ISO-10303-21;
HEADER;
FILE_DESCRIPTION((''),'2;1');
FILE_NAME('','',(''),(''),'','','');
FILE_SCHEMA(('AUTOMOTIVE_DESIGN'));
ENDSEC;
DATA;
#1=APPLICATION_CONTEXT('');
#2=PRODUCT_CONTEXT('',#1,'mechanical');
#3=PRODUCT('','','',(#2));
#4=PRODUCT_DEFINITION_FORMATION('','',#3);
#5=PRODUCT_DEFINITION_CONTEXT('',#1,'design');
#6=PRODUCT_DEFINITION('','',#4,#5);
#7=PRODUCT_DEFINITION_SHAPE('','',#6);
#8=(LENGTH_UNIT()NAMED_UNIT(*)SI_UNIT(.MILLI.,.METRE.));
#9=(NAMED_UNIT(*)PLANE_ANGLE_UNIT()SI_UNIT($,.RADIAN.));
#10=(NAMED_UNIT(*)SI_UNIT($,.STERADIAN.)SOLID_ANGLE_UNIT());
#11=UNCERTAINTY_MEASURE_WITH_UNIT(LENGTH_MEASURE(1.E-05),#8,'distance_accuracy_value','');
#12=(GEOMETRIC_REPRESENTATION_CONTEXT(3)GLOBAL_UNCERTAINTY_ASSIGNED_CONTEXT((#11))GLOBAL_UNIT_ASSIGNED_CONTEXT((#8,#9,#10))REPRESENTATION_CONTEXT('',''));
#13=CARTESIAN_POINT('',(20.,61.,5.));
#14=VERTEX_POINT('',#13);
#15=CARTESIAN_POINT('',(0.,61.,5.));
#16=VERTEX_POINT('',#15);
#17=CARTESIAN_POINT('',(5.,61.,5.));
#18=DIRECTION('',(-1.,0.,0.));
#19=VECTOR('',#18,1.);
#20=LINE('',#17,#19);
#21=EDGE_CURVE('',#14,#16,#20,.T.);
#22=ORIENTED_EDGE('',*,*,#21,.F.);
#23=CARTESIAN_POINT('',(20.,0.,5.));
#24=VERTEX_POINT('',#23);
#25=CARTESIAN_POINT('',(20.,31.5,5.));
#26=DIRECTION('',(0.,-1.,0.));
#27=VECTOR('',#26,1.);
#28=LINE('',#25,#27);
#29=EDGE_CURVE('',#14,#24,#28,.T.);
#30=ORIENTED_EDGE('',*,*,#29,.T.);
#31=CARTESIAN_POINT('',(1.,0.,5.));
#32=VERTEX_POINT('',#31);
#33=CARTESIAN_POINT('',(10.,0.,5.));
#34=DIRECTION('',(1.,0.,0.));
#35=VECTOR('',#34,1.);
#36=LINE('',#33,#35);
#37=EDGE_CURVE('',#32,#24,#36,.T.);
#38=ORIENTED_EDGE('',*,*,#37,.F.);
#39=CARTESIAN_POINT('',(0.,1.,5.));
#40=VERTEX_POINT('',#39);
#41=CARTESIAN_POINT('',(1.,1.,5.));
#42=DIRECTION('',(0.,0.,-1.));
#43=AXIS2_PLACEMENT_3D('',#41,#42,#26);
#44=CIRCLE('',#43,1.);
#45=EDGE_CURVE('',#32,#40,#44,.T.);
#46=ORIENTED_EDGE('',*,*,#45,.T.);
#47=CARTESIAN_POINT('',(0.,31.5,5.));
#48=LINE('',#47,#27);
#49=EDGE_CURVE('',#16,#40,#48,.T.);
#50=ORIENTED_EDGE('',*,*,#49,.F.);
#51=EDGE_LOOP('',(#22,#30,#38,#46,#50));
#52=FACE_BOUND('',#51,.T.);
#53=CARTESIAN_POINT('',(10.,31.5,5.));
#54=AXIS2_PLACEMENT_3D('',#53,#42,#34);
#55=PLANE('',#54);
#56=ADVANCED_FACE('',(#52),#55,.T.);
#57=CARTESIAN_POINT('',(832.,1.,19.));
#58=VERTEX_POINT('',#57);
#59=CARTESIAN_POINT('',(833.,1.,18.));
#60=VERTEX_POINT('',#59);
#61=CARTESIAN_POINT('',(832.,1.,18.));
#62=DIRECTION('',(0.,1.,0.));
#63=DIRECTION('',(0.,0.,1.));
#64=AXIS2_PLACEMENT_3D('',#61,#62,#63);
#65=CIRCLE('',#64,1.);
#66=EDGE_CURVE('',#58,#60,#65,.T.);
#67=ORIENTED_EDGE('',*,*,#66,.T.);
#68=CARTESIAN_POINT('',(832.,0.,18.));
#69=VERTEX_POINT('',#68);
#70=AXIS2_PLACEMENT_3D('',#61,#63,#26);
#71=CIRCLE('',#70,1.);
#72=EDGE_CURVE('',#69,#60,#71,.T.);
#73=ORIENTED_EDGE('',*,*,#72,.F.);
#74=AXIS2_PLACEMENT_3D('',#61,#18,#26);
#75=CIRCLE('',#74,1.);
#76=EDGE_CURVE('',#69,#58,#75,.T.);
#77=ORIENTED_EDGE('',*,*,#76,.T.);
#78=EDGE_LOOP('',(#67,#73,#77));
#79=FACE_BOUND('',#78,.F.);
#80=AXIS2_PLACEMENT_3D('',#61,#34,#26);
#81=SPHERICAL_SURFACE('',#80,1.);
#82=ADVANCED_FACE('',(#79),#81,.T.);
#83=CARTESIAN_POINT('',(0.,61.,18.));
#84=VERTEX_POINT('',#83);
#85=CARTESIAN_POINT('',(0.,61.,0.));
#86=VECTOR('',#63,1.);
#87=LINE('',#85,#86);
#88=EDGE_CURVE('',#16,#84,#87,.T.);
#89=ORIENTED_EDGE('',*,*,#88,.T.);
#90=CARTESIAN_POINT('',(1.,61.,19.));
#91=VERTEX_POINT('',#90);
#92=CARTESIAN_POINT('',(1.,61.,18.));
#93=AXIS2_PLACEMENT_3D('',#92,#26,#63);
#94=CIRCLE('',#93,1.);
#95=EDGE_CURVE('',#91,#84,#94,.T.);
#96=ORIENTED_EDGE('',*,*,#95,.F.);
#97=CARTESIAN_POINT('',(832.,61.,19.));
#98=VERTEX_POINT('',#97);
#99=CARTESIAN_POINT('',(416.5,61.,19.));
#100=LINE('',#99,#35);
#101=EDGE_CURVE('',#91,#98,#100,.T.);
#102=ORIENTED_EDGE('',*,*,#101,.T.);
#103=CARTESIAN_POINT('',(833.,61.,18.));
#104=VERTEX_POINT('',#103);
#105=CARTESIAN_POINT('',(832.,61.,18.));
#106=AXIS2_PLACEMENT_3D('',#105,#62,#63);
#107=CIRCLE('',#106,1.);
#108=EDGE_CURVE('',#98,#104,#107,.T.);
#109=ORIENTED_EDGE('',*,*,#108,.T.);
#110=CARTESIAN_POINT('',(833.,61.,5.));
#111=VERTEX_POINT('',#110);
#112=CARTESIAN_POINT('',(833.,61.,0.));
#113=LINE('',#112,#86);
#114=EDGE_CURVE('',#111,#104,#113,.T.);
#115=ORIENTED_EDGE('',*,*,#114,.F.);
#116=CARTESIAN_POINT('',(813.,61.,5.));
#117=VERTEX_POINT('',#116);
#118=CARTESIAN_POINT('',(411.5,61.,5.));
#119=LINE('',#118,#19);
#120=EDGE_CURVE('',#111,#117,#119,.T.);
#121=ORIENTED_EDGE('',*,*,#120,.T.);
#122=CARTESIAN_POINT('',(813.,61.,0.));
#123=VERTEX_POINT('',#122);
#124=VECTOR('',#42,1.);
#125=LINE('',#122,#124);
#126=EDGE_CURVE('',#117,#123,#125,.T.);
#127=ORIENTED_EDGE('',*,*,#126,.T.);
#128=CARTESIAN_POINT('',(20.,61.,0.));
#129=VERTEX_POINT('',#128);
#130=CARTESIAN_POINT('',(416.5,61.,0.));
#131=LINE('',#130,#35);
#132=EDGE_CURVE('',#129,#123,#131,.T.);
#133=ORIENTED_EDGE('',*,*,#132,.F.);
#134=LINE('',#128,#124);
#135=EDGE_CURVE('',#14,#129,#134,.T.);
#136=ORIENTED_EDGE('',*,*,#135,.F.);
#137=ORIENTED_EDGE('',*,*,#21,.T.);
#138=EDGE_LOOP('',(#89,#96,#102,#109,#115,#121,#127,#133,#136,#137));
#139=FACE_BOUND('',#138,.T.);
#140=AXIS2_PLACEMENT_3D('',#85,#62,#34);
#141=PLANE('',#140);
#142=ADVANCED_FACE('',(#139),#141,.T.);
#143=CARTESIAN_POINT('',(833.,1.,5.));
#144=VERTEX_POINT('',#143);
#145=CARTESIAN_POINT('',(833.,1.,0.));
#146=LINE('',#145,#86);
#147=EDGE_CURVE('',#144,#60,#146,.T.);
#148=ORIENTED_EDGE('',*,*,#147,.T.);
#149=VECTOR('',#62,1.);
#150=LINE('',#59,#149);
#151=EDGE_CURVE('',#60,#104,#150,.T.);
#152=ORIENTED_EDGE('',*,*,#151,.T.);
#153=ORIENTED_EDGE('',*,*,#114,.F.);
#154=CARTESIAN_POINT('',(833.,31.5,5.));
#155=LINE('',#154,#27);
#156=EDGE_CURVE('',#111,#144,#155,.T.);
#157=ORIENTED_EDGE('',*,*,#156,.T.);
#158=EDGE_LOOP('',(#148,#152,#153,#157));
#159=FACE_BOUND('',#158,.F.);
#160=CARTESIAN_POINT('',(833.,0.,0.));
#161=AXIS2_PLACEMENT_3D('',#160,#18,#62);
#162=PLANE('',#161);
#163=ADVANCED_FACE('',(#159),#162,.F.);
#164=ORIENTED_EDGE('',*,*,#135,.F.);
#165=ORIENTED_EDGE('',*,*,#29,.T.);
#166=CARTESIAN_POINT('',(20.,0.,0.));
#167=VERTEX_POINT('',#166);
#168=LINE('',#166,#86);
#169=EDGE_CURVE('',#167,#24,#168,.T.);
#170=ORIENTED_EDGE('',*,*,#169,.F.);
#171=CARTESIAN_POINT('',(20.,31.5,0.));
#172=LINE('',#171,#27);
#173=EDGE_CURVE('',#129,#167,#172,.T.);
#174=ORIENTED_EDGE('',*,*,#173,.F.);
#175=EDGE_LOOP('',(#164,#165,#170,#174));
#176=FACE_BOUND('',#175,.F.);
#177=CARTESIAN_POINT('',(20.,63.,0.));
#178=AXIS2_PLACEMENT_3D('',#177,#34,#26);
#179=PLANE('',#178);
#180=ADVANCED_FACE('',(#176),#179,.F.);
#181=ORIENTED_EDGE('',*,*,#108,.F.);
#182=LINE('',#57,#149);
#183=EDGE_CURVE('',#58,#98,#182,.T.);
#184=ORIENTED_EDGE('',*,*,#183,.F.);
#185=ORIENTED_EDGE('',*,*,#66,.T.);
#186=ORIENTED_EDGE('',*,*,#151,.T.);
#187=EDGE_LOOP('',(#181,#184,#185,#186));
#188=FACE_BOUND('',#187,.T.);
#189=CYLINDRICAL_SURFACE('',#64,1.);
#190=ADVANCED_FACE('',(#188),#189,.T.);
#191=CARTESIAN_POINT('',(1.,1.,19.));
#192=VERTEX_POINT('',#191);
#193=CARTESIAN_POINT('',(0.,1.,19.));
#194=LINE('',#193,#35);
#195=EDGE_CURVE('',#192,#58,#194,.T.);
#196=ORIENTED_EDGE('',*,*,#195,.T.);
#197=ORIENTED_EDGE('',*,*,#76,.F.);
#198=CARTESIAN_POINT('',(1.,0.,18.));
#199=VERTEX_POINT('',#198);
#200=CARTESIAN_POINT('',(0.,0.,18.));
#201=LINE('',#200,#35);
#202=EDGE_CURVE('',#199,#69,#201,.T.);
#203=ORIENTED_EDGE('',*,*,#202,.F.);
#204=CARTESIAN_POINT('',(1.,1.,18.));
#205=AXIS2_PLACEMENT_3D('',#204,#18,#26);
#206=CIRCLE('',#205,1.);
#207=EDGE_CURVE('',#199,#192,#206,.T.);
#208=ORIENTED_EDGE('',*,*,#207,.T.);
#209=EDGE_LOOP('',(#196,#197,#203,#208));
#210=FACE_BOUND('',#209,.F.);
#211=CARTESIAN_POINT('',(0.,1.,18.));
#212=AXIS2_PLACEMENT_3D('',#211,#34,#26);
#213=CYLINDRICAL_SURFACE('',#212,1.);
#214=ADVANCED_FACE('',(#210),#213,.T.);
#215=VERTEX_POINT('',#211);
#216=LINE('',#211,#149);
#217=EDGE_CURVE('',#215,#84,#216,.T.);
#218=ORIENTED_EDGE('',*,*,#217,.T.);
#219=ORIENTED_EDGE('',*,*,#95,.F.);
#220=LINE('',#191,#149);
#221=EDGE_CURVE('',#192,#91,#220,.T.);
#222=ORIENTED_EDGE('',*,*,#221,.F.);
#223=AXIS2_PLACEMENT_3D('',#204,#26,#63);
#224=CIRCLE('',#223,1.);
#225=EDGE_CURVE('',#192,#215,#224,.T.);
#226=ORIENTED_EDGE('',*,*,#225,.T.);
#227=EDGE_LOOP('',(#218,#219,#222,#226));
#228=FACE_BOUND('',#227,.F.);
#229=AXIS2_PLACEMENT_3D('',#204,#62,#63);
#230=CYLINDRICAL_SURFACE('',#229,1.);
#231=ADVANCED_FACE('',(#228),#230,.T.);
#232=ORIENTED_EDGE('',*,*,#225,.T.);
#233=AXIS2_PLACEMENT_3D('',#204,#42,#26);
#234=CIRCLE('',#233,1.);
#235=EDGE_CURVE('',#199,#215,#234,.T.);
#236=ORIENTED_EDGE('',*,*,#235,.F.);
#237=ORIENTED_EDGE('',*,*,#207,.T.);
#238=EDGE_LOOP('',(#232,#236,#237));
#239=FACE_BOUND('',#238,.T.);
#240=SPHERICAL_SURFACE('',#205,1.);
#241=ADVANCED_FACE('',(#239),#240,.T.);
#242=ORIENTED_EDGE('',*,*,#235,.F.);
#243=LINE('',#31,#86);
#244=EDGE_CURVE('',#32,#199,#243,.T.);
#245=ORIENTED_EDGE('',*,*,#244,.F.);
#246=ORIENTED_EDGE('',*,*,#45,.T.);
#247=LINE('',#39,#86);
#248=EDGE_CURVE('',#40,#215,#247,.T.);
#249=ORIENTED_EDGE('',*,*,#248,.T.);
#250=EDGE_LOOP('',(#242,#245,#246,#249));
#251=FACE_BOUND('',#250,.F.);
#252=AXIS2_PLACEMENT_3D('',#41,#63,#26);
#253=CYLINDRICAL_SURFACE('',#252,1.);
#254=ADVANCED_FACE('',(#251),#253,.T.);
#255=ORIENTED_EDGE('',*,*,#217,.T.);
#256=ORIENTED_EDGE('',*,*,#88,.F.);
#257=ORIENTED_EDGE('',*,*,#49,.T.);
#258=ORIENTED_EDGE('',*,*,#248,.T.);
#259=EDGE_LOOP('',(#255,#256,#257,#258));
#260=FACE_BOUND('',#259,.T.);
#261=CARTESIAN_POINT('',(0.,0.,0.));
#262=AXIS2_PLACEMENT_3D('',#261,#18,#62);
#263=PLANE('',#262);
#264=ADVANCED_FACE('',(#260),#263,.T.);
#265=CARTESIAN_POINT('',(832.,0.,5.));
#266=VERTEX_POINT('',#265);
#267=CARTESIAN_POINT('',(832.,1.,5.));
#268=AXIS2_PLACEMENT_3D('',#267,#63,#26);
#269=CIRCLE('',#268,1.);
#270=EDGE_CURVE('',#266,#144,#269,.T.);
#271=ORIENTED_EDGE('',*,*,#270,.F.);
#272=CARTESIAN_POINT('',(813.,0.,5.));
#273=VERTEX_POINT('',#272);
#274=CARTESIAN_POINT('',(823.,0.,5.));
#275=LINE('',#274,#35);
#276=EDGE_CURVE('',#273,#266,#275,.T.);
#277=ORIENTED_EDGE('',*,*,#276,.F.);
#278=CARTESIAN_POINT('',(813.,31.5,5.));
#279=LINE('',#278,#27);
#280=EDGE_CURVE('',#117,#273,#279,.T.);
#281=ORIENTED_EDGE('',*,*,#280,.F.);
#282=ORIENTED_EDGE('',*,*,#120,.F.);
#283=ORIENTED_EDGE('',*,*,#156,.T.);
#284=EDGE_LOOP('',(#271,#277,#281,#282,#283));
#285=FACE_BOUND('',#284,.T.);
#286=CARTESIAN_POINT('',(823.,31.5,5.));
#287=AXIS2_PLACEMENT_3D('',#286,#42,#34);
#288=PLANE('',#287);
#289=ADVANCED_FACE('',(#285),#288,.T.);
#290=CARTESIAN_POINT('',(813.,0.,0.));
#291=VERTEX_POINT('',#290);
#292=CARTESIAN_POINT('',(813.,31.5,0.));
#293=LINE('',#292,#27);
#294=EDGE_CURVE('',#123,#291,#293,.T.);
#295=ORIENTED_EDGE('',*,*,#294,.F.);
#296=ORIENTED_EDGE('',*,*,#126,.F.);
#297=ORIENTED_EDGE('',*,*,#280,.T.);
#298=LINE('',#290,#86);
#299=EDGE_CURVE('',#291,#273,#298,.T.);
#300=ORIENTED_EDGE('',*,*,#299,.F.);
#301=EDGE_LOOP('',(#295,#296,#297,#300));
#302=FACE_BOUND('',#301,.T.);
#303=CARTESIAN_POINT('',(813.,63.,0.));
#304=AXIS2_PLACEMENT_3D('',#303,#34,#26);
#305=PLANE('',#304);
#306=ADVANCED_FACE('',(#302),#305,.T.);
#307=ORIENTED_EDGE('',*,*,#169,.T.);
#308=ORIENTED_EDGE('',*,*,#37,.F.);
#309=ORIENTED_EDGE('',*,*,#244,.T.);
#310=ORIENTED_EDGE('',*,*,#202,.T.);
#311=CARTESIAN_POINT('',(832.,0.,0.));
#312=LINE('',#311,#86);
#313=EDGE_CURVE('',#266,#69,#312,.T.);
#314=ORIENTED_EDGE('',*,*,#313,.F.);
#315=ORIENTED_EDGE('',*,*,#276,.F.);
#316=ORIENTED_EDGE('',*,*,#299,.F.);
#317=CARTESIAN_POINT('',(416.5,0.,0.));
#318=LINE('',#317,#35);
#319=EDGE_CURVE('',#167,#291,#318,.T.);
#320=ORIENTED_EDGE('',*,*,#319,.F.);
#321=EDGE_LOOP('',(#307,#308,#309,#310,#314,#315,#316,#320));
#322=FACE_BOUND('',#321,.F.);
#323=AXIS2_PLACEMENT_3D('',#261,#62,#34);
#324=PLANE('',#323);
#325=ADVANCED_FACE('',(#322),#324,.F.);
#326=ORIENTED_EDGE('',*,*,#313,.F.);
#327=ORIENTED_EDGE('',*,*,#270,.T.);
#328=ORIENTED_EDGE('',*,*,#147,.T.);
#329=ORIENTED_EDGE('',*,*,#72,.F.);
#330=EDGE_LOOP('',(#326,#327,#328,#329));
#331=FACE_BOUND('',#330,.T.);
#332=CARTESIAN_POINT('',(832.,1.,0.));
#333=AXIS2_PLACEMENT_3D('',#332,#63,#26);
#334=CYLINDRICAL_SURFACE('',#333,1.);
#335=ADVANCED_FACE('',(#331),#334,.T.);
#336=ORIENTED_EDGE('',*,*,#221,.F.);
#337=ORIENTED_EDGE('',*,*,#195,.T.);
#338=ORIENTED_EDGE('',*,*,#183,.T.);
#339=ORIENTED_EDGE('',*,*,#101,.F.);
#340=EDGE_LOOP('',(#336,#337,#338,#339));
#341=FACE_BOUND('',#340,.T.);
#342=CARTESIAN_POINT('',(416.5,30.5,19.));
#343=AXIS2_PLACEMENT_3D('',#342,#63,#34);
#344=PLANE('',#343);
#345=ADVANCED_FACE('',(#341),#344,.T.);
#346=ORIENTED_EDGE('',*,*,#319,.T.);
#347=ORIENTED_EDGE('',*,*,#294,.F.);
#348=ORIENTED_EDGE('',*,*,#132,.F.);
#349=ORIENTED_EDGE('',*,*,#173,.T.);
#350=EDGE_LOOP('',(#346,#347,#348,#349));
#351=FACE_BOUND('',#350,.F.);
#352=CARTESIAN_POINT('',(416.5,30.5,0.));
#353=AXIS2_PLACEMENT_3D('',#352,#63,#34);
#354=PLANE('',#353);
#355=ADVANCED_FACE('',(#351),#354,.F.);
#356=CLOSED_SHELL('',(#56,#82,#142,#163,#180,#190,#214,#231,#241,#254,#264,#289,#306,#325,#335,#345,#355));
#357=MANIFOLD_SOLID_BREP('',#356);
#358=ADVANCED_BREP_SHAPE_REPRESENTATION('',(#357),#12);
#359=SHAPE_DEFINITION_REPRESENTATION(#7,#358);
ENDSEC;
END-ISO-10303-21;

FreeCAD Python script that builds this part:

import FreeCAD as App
import Part
import Sketcher
from FreeCAD import Vector


def edges_at(feature, points):
    """Names of the edges that pass closest to the given points."""
    edges = feature.Shape.Edges
    near = lambda p: min(range(len(edges)), key=lambda i: edges[i].distToShape(Part.Vertex(*p))[0])
    return sorted({f"Edge{near(p) + 1}" for p in points})

doc = App.newDocument("Part")
params = doc.addObject("Spreadsheet::Sheet", "Params")
for row, (alias, value) in enumerate([
    ("sketch1_width", "833 mm"),
    ("sketch1_height", "61 mm"),
    ("pad1_length", "19 mm"),
    ("fillet_radius", "1 mm"),
    ("fillet2_radius", "1 mm"),
    ("sketch2_width", "20 mm"),
    ("sketch2_height", "63 mm"),
    ("pocket1_length", "5 mm"),
    ("sketch3_width", "20 mm"),
    ("sketch3_height", "63 mm"),
    ("pocket2_length", "5 mm"),
    ("fillet3_radius", "1 mm"),
], start=1):
    params.set(f"A{row}", alias)
    params.set(f"B{row}", "=" + value)
    params.setAlias(f"B{row}", alias)

body = doc.addObject("PartDesign::Body", "Body")

# Sketch on XY plane
sketch1 = body.newObject("Sketcher::SketchObject", "Sketch")
sketch1.AttachmentSupport = (doc.getObject("XY_Plane"), [""])
sketch1.MapMode = "FlatFace"
sketch1.addGeometry([
    Part.LineSegment(Vector(0, 61, 0), Vector(0, 0, 0)),
    Part.LineSegment(Vector(0, 0, 0), Vector(833, 0, 0)),
    Part.LineSegment(Vector(833, 0, 0), Vector(833, 61, 0)),
    Part.LineSegment(Vector(833, 61, 0), Vector(0, 61, 0)),
], False)
sketch1.addConstraint([
    Sketcher.Constraint("Coincident", 0, 2, 1, 1),
    Sketcher.Constraint("Coincident", 1, 2, 2, 1),
    Sketcher.Constraint("Coincident", 2, 2, 3, 1),
    Sketcher.Constraint("Coincident", 3, 2, 0, 1),
    Sketcher.Constraint("Vertical", 0),
    Sketcher.Constraint("Horizontal", 1),
    Sketcher.Constraint("Vertical", 2),
    Sketcher.Constraint("Horizontal", 3),
    Sketcher.Constraint("Coincident", 0, 2, -1, 1),
    Sketcher.Constraint("DistanceX", 1, 1, 1, 2, 833.0),
    Sketcher.Constraint("DistanceY", 0, 2, 0, 1, 61.0),
])
sketch1.setExpression("Constraints[9]", "Params.sketch1_width")
sketch1.setExpression("Constraints[10]", "Params.sketch1_height")
pad1 = body.newObject("PartDesign::Pad", "Pad")
pad1.Profile = sketch1
pad1.setExpression("Length", "Params.pad1_length")
doc.recompute()

fillet = body.newObject("PartDesign::Fillet", "Fillet")
fillet.Base = (pad1, edges_at(pad1, [(416.5, 0, 19)]))
fillet.setExpression("Radius", "Params.fillet_radius")
doc.recompute()

fillet2 = body.newObject("PartDesign::Fillet", "Fillet001")
fillet2.Base = (fillet, edges_at(fillet, [(833, 31, 19)]))
fillet2.setExpression("Radius", "Params.fillet2_radius")

# Sketch on XY plane
sketch2 = body.newObject("Sketcher::SketchObject", "Sketch001")
sketch2.AttachmentSupport = (doc.getObject("XY_Plane"), [""])
sketch2.MapMode = "FlatFace"
sketch2.addGeometry([
    Part.LineSegment(Vector(0, 0, 0), Vector(0, 63, 0)),
    Part.LineSegment(Vector(0, 63, 0), Vector(20, 63, 0)),
    Part.LineSegment(Vector(20, 63, 0), Vector(20, 0, 0)),
    Part.LineSegment(Vector(20, 0, 0), Vector(0, 0, 0)),
], False)
sketch2.addConstraint([
    Sketcher.Constraint("Coincident", 0, 2, 1, 1),
    Sketcher.Constraint("Coincident", 1, 2, 2, 1),
    Sketcher.Constraint("Coincident", 2, 2, 3, 1),
    Sketcher.Constraint("Coincident", 3, 2, 0, 1),
    Sketcher.Constraint("Vertical", 0),
    Sketcher.Constraint("Horizontal", 1),
    Sketcher.Constraint("Vertical", 2),
    Sketcher.Constraint("Horizontal", 3),
    Sketcher.Constraint("Coincident", 3, 2, -1, 1),
    Sketcher.Constraint("DistanceX", 1, 1, 1, 2, 20.0),
    Sketcher.Constraint("DistanceY", 0, 1, 0, 2, 63.0),
])
sketch2.setExpression("Constraints[9]", "Params.sketch2_width")
sketch2.setExpression("Constraints[10]", "Params.sketch2_height")
pocket1 = body.newObject("PartDesign::Pocket", "Pocket")
pocket1.Profile = sketch2
pocket1.setExpression("Length", "Params.pocket1_length")
pocket1.Reversed = True

# Sketch on XY plane
sketch3 = body.newObject("Sketcher::SketchObject", "Sketch002")
sketch3.AttachmentSupport = (doc.getObject("XY_Plane"), [""])
sketch3.MapMode = "FlatFace"
sketch3.addGeometry([
    Part.LineSegment(Vector(813, 0, 0), Vector(813, 63, 0)),
    Part.LineSegment(Vector(813, 63, 0), Vector(833, 63, 0)),
    Part.LineSegment(Vector(833, 63, 0), Vector(833, 0, 0)),
    Part.LineSegment(Vector(833, 0, 0), Vector(813, 0, 0)),
], False)
sketch3.addConstraint([
    Sketcher.Constraint("Coincident", 0, 2, 1, 1),
    Sketcher.Constraint("Coincident", 1, 2, 2, 1),
    Sketcher.Constraint("Coincident", 2, 2, 3, 1),
    Sketcher.Constraint("Coincident", 3, 2, 0, 1),
    Sketcher.Constraint("Vertical", 0),
    Sketcher.Constraint("Horizontal", 1),
    Sketcher.Constraint("Vertical", 2),
    Sketcher.Constraint("Horizontal", 3),
    Sketcher.Constraint("PointOnObject", 2, 2, -1),
    Sketcher.Constraint("DistanceX", 1, 1, 1, 2, 20.0),
    Sketcher.Constraint("DistanceY", 0, 1, 0, 2, 63.0),
    Sketcher.Constraint("DistanceX", -1, 1, 0, 2, 813.0),
])
sketch3.setExpression("Constraints[9]", "Params.sketch3_width")
sketch3.setExpression("Constraints[10]", "Params.sketch3_height")
pocket2 = body.newObject("PartDesign::Pocket", "Pocket001")
pocket2.Profile = sketch3
pocket2.setExpression("Length", "Params.pocket2_length")
pocket2.Reversed = True
doc.recompute()

fillet3 = body.newObject("PartDesign::Fillet", "Fillet002")
fillet3.Base = (pocket2, edges_at(pocket2, [(0, 0, 11.5)]))
fillet3.setExpression("Radius", "Params.fillet3_radius")

doc.recompute()
